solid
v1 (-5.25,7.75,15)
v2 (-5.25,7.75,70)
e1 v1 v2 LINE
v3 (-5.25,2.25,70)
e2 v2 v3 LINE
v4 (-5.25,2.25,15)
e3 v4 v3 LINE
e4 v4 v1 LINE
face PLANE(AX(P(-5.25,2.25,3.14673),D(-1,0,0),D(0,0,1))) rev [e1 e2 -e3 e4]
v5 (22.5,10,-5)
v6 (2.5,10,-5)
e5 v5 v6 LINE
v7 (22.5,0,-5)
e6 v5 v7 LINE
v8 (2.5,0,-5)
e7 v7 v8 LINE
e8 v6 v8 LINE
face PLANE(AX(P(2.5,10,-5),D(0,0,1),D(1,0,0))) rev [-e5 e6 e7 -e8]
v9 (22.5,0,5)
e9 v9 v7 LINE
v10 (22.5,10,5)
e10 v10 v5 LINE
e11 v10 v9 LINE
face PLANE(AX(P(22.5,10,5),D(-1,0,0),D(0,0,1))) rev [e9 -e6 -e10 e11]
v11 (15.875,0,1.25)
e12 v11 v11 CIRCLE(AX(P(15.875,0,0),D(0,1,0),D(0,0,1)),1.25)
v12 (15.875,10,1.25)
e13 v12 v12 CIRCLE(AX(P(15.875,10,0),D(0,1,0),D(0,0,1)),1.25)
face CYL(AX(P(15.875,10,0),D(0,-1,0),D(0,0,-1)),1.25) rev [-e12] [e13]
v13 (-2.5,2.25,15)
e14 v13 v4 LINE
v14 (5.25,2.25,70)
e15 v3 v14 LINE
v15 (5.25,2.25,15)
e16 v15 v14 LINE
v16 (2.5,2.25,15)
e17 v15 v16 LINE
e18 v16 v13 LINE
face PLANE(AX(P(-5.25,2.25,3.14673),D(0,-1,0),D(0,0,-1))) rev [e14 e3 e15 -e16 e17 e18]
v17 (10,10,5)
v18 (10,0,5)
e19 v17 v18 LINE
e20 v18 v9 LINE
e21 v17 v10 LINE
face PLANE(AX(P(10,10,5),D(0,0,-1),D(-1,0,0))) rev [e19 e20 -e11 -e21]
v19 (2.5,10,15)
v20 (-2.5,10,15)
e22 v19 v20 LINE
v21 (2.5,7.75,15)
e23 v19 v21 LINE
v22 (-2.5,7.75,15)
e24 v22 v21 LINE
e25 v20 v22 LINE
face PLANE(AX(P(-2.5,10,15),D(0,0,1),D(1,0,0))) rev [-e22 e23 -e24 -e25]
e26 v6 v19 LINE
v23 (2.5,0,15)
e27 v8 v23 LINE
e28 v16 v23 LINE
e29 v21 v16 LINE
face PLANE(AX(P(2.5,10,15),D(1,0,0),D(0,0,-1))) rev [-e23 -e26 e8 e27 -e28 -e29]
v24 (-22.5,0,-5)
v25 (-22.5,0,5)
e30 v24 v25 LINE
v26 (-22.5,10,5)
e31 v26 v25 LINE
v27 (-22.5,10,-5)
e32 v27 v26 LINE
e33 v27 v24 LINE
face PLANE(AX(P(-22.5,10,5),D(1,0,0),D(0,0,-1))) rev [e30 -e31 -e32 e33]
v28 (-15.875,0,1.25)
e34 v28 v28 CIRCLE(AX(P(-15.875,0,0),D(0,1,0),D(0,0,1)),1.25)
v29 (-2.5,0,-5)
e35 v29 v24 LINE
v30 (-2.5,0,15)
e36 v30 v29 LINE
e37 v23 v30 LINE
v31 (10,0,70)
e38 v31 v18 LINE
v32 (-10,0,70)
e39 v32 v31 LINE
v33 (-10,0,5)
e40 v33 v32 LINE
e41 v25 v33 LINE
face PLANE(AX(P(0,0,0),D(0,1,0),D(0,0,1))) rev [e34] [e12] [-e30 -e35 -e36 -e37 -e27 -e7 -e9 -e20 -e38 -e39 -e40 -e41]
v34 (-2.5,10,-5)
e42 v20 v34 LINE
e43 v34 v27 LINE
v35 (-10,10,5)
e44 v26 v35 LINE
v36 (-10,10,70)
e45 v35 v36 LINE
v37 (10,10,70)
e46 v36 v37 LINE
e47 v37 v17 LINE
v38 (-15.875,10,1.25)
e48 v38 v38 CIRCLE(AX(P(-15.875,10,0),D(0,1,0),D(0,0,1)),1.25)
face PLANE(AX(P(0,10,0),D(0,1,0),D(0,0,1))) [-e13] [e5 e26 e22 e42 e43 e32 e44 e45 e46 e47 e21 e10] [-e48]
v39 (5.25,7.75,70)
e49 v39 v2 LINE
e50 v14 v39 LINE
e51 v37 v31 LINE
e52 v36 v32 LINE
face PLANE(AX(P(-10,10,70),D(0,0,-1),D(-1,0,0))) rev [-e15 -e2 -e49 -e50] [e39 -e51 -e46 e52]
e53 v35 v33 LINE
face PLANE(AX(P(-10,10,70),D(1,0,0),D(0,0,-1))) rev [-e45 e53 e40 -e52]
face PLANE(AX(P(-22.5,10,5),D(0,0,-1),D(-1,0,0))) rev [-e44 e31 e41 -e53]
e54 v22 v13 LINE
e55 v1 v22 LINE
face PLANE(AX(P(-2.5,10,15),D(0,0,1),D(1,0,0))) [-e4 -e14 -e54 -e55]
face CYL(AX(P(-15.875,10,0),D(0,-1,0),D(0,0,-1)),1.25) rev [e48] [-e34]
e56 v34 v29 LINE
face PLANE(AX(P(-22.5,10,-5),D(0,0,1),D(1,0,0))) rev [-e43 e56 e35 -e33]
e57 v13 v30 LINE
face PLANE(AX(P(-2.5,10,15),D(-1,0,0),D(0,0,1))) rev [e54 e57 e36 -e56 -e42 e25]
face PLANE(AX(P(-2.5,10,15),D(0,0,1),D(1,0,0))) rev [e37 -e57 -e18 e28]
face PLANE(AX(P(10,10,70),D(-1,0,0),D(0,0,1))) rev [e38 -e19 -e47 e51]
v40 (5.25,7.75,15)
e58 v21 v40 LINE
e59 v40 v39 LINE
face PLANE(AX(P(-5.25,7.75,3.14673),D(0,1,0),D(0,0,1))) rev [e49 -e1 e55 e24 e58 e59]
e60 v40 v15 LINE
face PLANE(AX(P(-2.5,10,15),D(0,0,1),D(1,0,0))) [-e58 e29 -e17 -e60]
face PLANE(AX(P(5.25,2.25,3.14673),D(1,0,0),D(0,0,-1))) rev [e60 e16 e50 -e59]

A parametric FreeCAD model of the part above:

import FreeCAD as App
import Part
import Sketcher
from FreeCAD import Vector
Q = App.Units.Quantity


def add_polygon(sketch, points):
    """Adds a closed chain of lines whose ends are joined by coincident constraints."""
    first, n = sketch.GeometryCount, len(points)
    for a, b in zip(points, points[1:] + points[:1]):
        sketch.addGeometry(Part.LineSegment(App.Vector(*a, 0), App.Vector(*b, 0)), False)
    for i in range(n):
        sketch.addConstraint(Sketcher.Constraint("Coincident", first + i, 2, first + (i + 1) % n, 1))

doc = App.newDocument("Part")
body = doc.addObject("PartDesign::Body", "Body")

# Sketch on XZ plane
sketch1 = body.newObject("Sketcher::SketchObject", "Sketch")
sketch1.AttachmentSupport = (doc.getObject("XZ_Plane"), [""])
sketch1.MapMode = "FlatFace"
add_polygon(sketch1, [(10, 5), (22.5, 5), (22.5, -5), (2.5, -5), (2.5, 15), (-2.5, 15), (-2.5, -5), (-22.5, -5), (-22.5, 5), (-10, 5), (-10, 70), (10, 70)])  # lines 0-11
sketch1.addGeometry(Part.Circle(Vector(-15.9, 0, 0), Vector(0, 0, 1), 1.2), False)  # 12
sketch1.addGeometry(Part.Circle(Vector(15.9, 0, 0), Vector(0, 0, 1), 1.2), False)  # 13
sketch1.addConstraint([
    Sketcher.Constraint("Horizontal", 0),
    Sketcher.Constraint("Vertical", 1),
    Sketcher.Constraint("Horizontal", 2),
    Sketcher.Constraint("Vertical", 3),
    Sketcher.Constraint("Horizontal", 4),
    Sketcher.Constraint("Vertical", 5),
    Sketcher.Constraint("Horizontal", 6),
    Sketcher.Constraint("Vertical", 7),
    Sketcher.Constraint("Horizontal", 8),
    Sketcher.Constraint("Vertical", 9),
    Sketcher.Constraint("Horizontal", 10),
    Sketcher.Constraint("Vertical", 11),
    Sketcher.Constraint("Equal", 12, 13),
    Sketcher.Constraint("Symmetric", 12, 3, 13, 3, -1, 1),
    Sketcher.Constraint("Symmetric", 0, 2, 6, 2, -1, 1),
    Sketcher.Constraint("Symmetric", 2, 2, 5, 2, -2),
    Sketcher.Constraint("Symmetric", 8, 2, 11, 2, -2),
    Sketcher.Constraint("PointOnObject", 12, 3, -1),
    Sketcher.Constraint("Equal", 6, 10),
    Sketcher.Constraint("Equal", 10, 3),
    Sketcher.Constraint("Diameter", 12, Q("2.5 mm")),
    Sketcher.Constraint("DistanceX", 2, 2, 2, 1, Q("20 mm")),
    Sketcher.Constraint("DistanceX", 4, 2, 4, 1, Q("5 mm")),
    Sketcher.Constraint("DistanceY", 1, 2, 1, 1, Q("10 mm")),
    Sketcher.Constraint("DistanceY", 9, 1, 9, 2, Q("65 mm")),
    Sketcher.Constraint("DistanceX", 12, 3, 13, 3, Q("31.75 mm")),
])
pad1 = body.newObject("PartDesign::Pad", "Pad")
pad1.Profile = sketch1
pad1.Length = 10
pad1.Reversed = True

# Sketch on XY plane
sketch2 = body.newObject("Sketcher::SketchObject", "Sketch001")
sketch2.AttachmentSupport = (doc.getObject("XY_Plane"), [""])
sketch2.MapMode = "FlatFace"
sketch2.AttachmentOffset = App.Placement(Vector(0, 0, 70), App.Rotation())
add_polygon(sketch2, [(-5, 8), (-5, 2), (5, 2), (5, 8)])  # lines 0-3
sketch2.addConstraint([
    Sketcher.Constraint("Vertical", 0),
    Sketcher.Constraint("Horizontal", 1),
    Sketcher.Constraint("Vertical", 2),
    Sketcher.Constraint("Horizontal", 3),
    Sketcher.Constraint("DistanceX", 1, 1, 1, 2, Q("10.5 mm")),
    Sketcher.Constraint("DistanceY", 0, 2, 0, 1, Q("5.5 mm")),
    Sketcher.Constraint("DistanceX", 0, 2, -1, 1, Q("5.25 mm")),
    Sketcher.Constraint("DistanceY", -1, 1, 0, 2, Q("2.25 mm")),
])
pocket1 = body.newObject("PartDesign::Pocket", "Pocket")
pocket1.Profile = sketch2
pocket1.Length = 55

doc.recompute()
